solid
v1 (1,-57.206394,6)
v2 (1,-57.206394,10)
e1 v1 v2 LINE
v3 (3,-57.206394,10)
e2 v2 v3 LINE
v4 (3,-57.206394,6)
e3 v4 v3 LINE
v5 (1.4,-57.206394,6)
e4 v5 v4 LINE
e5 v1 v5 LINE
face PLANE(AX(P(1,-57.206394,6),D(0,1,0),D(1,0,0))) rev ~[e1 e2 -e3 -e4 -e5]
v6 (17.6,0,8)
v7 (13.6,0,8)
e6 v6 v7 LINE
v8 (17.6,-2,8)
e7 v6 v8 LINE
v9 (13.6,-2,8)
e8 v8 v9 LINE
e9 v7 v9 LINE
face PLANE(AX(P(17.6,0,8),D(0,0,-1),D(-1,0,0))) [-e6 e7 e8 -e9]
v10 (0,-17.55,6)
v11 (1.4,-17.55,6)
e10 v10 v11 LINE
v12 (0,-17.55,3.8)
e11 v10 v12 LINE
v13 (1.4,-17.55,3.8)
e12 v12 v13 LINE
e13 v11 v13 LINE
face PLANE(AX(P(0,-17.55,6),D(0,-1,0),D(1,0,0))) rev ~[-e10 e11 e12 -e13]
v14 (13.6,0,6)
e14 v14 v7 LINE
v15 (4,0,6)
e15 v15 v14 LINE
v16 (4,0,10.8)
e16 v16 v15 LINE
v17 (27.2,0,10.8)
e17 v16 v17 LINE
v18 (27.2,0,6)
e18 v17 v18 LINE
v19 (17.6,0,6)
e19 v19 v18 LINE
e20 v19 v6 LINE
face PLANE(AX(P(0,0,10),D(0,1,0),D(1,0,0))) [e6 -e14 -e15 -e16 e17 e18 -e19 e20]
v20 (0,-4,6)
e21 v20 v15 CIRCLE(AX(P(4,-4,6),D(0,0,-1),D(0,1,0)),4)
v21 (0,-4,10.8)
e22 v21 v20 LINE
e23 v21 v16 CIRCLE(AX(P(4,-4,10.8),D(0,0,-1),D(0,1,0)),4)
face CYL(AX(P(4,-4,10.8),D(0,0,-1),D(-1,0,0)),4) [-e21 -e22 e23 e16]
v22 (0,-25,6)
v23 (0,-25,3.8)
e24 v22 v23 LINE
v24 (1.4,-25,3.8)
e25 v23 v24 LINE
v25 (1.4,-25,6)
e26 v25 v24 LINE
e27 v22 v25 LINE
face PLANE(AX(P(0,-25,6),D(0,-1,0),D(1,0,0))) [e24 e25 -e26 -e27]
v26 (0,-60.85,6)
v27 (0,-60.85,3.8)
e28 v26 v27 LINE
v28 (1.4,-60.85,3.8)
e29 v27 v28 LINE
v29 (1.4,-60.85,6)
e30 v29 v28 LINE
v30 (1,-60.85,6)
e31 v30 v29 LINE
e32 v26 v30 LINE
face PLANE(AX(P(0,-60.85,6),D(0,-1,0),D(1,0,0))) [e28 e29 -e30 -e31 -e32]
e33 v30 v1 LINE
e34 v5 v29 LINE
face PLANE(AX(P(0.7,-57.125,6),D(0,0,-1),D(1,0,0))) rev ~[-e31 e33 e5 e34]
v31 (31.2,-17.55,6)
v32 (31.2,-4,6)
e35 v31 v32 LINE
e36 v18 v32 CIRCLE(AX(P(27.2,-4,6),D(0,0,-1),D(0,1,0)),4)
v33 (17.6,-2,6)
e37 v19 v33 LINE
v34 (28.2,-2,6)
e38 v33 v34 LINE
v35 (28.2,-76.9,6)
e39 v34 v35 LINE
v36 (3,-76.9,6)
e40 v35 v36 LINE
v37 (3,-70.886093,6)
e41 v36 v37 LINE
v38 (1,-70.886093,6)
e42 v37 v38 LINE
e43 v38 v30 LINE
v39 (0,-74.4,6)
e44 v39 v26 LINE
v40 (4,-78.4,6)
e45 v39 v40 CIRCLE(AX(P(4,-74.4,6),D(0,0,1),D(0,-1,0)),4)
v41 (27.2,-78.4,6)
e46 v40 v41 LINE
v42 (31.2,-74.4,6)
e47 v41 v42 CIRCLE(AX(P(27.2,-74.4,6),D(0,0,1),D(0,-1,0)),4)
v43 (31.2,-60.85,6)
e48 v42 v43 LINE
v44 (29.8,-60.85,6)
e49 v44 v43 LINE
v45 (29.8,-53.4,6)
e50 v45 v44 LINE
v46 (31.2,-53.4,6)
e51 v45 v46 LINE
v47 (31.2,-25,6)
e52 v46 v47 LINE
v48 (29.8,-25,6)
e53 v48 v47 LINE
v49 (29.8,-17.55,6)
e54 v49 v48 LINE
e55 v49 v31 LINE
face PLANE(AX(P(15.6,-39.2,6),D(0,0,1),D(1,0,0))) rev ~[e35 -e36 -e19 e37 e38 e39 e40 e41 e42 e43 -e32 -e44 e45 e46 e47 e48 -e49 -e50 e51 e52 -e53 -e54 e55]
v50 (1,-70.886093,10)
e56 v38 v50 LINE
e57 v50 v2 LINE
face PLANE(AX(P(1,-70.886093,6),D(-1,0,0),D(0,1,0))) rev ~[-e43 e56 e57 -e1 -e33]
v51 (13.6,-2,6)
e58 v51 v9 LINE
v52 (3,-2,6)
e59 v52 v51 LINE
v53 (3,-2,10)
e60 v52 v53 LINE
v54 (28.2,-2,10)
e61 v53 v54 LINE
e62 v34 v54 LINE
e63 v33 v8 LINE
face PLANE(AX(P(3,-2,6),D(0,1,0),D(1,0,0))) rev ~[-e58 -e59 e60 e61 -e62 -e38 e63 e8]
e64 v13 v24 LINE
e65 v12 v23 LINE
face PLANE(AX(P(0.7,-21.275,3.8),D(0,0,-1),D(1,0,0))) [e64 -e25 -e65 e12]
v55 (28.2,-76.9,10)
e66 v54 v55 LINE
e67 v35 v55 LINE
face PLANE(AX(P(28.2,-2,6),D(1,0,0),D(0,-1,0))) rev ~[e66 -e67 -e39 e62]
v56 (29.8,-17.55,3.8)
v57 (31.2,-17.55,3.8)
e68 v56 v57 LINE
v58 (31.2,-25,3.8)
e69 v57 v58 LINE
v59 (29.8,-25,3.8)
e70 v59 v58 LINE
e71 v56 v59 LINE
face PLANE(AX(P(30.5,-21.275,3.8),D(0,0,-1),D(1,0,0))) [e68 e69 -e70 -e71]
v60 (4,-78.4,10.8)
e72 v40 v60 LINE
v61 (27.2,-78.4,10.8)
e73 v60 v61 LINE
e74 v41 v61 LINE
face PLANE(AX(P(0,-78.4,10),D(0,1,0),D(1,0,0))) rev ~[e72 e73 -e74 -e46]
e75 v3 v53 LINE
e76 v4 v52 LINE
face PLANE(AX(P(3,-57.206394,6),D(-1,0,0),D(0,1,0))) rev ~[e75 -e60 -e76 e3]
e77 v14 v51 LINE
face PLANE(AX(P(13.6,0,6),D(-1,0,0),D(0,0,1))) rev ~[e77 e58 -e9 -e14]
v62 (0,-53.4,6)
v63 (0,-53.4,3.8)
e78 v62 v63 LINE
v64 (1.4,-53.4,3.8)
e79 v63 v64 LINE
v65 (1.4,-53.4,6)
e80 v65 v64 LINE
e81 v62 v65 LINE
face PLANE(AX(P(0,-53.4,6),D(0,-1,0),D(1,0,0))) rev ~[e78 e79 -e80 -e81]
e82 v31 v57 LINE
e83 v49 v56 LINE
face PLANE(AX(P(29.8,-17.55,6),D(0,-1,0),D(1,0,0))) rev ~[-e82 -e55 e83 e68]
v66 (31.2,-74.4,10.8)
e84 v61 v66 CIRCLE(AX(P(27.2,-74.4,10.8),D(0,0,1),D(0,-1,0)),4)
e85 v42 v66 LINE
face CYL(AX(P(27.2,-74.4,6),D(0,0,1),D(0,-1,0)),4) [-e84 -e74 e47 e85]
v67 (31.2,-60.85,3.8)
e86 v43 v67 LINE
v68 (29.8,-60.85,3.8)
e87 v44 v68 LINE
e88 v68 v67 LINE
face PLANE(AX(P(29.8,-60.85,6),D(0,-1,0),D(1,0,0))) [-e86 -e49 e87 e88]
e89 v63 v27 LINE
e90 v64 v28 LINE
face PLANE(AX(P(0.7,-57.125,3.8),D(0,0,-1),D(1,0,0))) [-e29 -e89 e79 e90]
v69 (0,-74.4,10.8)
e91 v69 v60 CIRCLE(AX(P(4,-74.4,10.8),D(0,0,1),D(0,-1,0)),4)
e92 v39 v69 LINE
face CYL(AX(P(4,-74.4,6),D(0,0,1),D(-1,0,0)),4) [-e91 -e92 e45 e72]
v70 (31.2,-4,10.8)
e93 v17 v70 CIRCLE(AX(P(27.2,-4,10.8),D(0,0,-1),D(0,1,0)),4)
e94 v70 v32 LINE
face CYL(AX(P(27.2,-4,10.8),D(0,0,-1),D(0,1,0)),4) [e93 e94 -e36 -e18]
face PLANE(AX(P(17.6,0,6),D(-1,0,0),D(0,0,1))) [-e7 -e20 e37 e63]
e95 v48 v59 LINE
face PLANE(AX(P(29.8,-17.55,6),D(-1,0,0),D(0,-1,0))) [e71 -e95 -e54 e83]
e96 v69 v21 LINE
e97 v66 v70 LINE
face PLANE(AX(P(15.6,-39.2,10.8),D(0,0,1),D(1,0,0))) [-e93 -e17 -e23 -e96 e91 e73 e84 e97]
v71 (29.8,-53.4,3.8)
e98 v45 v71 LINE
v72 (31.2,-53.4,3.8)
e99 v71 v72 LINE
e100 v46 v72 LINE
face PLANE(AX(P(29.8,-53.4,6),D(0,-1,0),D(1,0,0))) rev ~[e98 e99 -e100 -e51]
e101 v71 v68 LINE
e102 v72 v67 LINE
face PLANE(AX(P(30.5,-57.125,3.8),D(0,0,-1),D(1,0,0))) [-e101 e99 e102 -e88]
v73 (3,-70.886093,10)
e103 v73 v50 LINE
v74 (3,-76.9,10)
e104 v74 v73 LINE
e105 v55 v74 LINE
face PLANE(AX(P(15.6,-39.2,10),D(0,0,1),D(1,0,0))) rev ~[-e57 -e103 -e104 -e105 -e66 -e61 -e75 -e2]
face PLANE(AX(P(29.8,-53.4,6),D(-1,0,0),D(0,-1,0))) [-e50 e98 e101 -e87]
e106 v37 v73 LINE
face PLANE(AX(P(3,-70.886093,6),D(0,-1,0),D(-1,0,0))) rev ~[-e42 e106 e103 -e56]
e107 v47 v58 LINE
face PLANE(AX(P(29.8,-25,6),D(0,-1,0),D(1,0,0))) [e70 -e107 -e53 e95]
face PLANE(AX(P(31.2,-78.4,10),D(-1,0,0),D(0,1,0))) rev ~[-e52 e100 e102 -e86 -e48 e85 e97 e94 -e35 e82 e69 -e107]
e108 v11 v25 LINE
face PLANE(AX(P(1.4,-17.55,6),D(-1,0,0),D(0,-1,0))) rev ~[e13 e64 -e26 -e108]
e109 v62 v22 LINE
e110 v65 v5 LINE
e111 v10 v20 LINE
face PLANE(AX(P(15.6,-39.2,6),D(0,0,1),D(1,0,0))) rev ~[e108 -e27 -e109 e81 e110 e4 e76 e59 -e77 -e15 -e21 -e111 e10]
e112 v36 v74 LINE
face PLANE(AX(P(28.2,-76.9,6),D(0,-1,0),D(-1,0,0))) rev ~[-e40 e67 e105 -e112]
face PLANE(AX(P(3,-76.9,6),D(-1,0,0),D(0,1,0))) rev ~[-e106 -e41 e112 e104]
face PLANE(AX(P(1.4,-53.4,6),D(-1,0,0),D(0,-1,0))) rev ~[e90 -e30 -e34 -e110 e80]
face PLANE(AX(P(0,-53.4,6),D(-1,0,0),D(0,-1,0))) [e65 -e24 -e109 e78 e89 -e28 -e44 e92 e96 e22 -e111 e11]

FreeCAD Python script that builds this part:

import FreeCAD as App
import Part
import Sketcher
from FreeCAD import Vector


def edges_at(feature, points):
    """Names of the edges that pass closest to the given points."""
    edges = feature.Shape.Edges
    near = lambda p: min(range(len(edges)), key=lambda i: edges[i].distToShape(Part.Vertex(*p))[0])
    return sorted({f"Edge{near(p) + 1}" for p in points})

doc = App.newDocument("Part")
body = doc.addObject("PartDesign::Body", "Body")

# Sketch on XY plane
sketch1 = body.newObject("Sketcher::SketchObject", "Sketch")
sketch1.AttachmentSupport = (doc.getObject("XY_Plane"), [""])
sketch1.MapMode = "FlatFace"
sketch1.addGeometry(Part.LineSegment(Vector(0, 0, 0), Vector(0, -78.4, 0)), False)
sketch1.addGeometry(Part.LineSegment(Vector(0, -78.4, 0), Vector(31.2, -78.4, 0)), False)
sketch1.addGeometry(Part.LineSegment(Vector(31.2, -78.4, 0), Vector(31.2, 0, 0)), False)
sketch1.addGeometry(Part.LineSegment(Vector(31.2, 0, 0), Vector(0, 0, 0)), False)
sketch1.addGeometry(Part.LineSegment(Vector(3, -57.2, 0), Vector(3, -2, 0)), False)
sketch1.addGeometry(Part.LineSegment(Vector(3, -2, 0), Vector(28.2, -2, 0)), False)
sketch1.addGeometry(Part.LineSegment(Vector(28.2, -2, 0), Vector(28.2, -76.9, 0)), False)
sketch1.addGeometry(Part.LineSegment(Vector(28.2, -76.9, 0), Vector(3, -76.9, 0)), False)
sketch1.addGeometry(Part.LineSegment(Vector(3, -76.9, 0), Vector(3, -70.9, 0)), False)
sketch1.addGeometry(Part.LineSegment(Vector(3, -70.9, 0), Vector(1, -70.9, 0)), False)
sketch1.addGeometry(Part.LineSegment(Vector(1, -70.9, 0), Vector(1, -57.2, 0)), False)
sketch1.addGeometry(Part.LineSegment(Vector(1, -57.2, 0), Vector(3, -57.2, 0)), False)
sketch1.addConstraint(Sketcher.Constraint("Coincident", 0, 2, 1, 1))
sketch1.addConstraint(Sketcher.Constraint("Coincident", 1, 2, 2, 1))
sketch1.addConstraint(Sketcher.Constraint("Coincident", 2, 2, 3, 1))
sketch1.addConstraint(Sketcher.Constraint("Coincident", 3, 2, 0, 1))
sketch1.addConstraint(Sketcher.Constraint("Coincident", 4, 2, 5, 1))
sketch1.addConstraint(Sketcher.Constraint("Coincident", 5, 2, 6, 1))
sketch1.addConstraint(Sketcher.Constraint("Coincident", 6, 2, 7, 1))
sketch1.addConstraint(Sketcher.Constraint("Coincident", 7, 2, 8, 1))
sketch1.addConstraint(Sketcher.Constraint("Coincident", 8, 2, 9, 1))
sketch1.addConstraint(Sketcher.Constraint("Coincident", 9, 2, 10, 1))
sketch1.addConstraint(Sketcher.Constraint("Coincident", 10, 2, 11, 1))
sketch1.addConstraint(Sketcher.Constraint("Coincident", 11, 2, 4, 1))
sketch1.addConstraint(Sketcher.Constraint("Vertical", 0))
sketch1.addConstraint(Sketcher.Constraint("Horizontal", 1))
sketch1.addConstraint(Sketcher.Constraint("Vertical", 2))
sketch1.addConstraint(Sketcher.Constraint("Horizontal", 3))
sketch1.addConstraint(Sketcher.Constraint("Vertical", 4))
sketch1.addConstraint(Sketcher.Constraint("Horizontal", 5))
sketch1.addConstraint(Sketcher.Constraint("Vertical", 6))
sketch1.addConstraint(Sketcher.Constraint("Horizontal", 7))
sketch1.addConstraint(Sketcher.Constraint("Vertical", 8))
sketch1.addConstraint(Sketcher.Constraint("Horizontal", 9))
sketch1.addConstraint(Sketcher.Constraint("Vertical", 10))
sketch1.addConstraint(Sketcher.Constraint("Horizontal", 11))
sketch1.addConstraint(Sketcher.Constraint("Coincident", 3, 2, -1, 1))
sketch1.addConstraint(Sketcher.Constraint("Vertical", 4, 2, 7, 2))
sketch1.addConstraint(Sketcher.Constraint("DistanceX", 9, 2, 9, 1, 2.0))
sketch1.addConstraint(Sketcher.Constraint("DistanceX", 1, 1, 1, 2, 31.2))
sketch1.addConstraint(Sketcher.Constraint("DistanceX", 5, 1, 5, 2, 25.2))
sketch1.addConstraint(Sketcher.Constraint("DistanceY", 0, 2, 0, 1, 78.4))
sketch1.addConstraint(Sketcher.Constraint("DistanceY", 6, 2, 6, 1, 74.9))
sketch1.addConstraint(Sketcher.Constraint("DistanceX", -1, 1, 4, 2, 3.0))
sketch1.addConstraint(Sketcher.Constraint("DistanceY", 4, 2, -1, 1, 2.0))
sketch1.addConstraint(Sketcher.Constraint("DistanceY", 10, 1, 10, 2, 13.679699))
sketch1.addConstraint(Sketcher.Constraint("DistanceY", 4, 1, 4, 2, 55.206394))
pad1 = body.newObject("PartDesign::Pad", "Pad")
pad1.Profile = sketch1
pad1.Length = 4

# Sketch on XY plane
sketch2 = body.newObject("Sketcher::SketchObject", "Sketch001")
sketch2.AttachmentSupport = (doc.getObject("XY_Plane"), [""])
sketch2.MapMode = "FlatFace"
sketch2.AttachmentOffset = App.Placement(Vector(0, 0, 4), App.Rotation())
sketch2.addGeometry(Part.LineSegment(Vector(0, 0, 0), Vector(0, -78, 0)), False)
sketch2.addGeometry(Part.LineSegment(Vector(0, -78, 0), Vector(31, -78, 0)), False)
sketch2.addGeometry(Part.LineSegment(Vector(31, -78, 0), Vector(31, 0, 0)), False)
sketch2.addGeometry(Part.LineSegment(Vector(31, 0, 0), Vector(0, 0, 0)), False)
sketch2.addConstraint(Sketcher.Constraint("Coincident", 0, 2, 1, 1))
sketch2.addConstraint(Sketcher.Constraint("Coincident", 1, 2, 2, 1))
sketch2.addConstraint(Sketcher.Constraint("Coincident", 2, 2, 3, 1))
sketch2.addConstraint(Sketcher.Constraint("Coincident", 3, 2, 0, 1))
sketch2.addConstraint(Sketcher.Constraint("Vertical", 0))
sketch2.addConstraint(Sketcher.Constraint("Horizontal", 1))
sketch2.addConstraint(Sketcher.Constraint("Vertical", 2))
sketch2.addConstraint(Sketcher.Constraint("Horizontal", 3))
sketch2.addConstraint(Sketcher.Constraint("Coincident", 3, 2, -1, 1))
sketch2.addConstraint(Sketcher.Constraint("DistanceX", 1, 1, 1, 2, 31.2))
sketch2.addConstraint(Sketcher.Constraint("DistanceY", 0, 2, 0, 1, 78.4))
pad2 = body.newObject("PartDesign::Pad", "Pad001")
pad2.Profile = sketch2
pad2.Length = 0.8

# Sketch on XZ plane
sketch3 = body.newObject("Sketcher::SketchObject", "Sketch002")
sketch3.AttachmentSupport = (doc.getObject("XZ_Plane"), [""])
sketch3.MapMode = "FlatFace"
sketch3.addGeometry(Part.LineSegment(Vector(17.6, 2, 0), Vector(17.6, 0, 0)), False)
sketch3.addGeometry(Part.LineSegment(Vector(17.6, 0, 0), Vector(13.6, 0, 0)), False)
sketch3.addGeometry(Part.LineSegment(Vector(13.6, 0, 0), Vector(13.6, 2, 0)), False)
sketch3.addGeometry(Part.LineSegment(Vector(13.6, 2, 0), Vector(17.6, 2, 0)), False)
sketch3.addConstraint(Sketcher.Constraint("Coincident", 0, 2, 1, 1))
sketch3.addConstraint(Sketcher.Constraint("Coincident", 1, 2, 2, 1))
sketch3.addConstraint(Sketcher.Constraint("Coincident", 2, 2, 3, 1))
sketch3.addConstraint(Sketcher.Constraint("Coincident", 3, 2, 0, 1))
sketch3.addConstraint(Sketcher.Constraint("Vertical", 0))
sketch3.addConstraint(Sketcher.Constraint("Horizontal", 1))
sketch3.addConstraint(Sketcher.Constraint("Vertical", 2))
sketch3.addConstraint(Sketcher.Constraint("Horizontal", 3))
sketch3.addConstraint(Sketcher.Constraint("PointOnObject", 0, 2, -1))
sketch3.addConstraint(Sketcher.Constraint("DistanceX", 1, 2, 1, 1, 4.0))
sketch3.addConstraint(Sketcher.Constraint("DistanceY", 0, 2, 0, 1, 2.0))
sketch3.addConstraint(Sketcher.Constraint("DistanceX", -1, 1, 0, 2, 17.6))
pocket1 = body.newObject("PartDesign::Pocket", "Pocket")
pocket1.Profile = sketch3
pocket1.Length = 5
pocket1.Reversed = True

# Sketch on XY plane
sketch4 = body.newObject("Sketcher::SketchObject", "Sketch003")
sketch4.AttachmentSupport = (doc.getObject("XY_Plane"), [""])
sketch4.MapMode = "FlatFace"
sketch4.addGeometry(Part.LineSegment(Vector(0, -60.9, 0), Vector(0, -53.4, 0)), False)
sketch4.addGeometry(Part.LineSegment(Vector(0, -53.4, 0), Vector(1.4, -53.4, 0)), False)
sketch4.addGeometry(Part.LineSegment(Vector(1.4, -53.4, 0), Vector(1.4, -60.9, 0)), False)
sketch4.addGeometry(Part.LineSegment(Vector(1.4, -60.9, 0), Vector(0, -60.9, 0)), False)
sketch4.addGeometry(Part.LineSegment(Vector(0, -25, 0), Vector(0, -17.6, 0)), False)
sketch4.addGeometry(Part.LineSegment(Vector(0, -17.6, 0), Vector(1.4, -17.6, 0)), False)
sketch4.addGeometry(Part.LineSegment(Vector(1.4, -17.6, 0), Vector(1.4, -25, 0)), False)
sketch4.addGeometry(Part.LineSegment(Vector(1.4, -25, 0), Vector(0, -25, 0)), False)
sketch4.addGeometry(Part.LineSegment(Vector(29.8, -25, 0), Vector(29.8, -17.6, 0)), False)
sketch4.addGeometry(Part.LineSegment(Vector(29.8, -17.6, 0), Vector(31.2, -17.6, 0)), False)
sketch4.addGeometry(Part.LineSegment(Vector(31.2, -17.6, 0), Vector(31.2, -25, 0)), False)
sketch4.addGeometry(Part.LineSegment(Vector(31.2, -25, 0), Vector(29.8, -25, 0)), False)
sketch4.addGeometry(Part.LineSegment(Vector(29.8, -60.9, 0), Vector(29.8, -53.4, 0)), False)
sketch4.addGeometry(Part.LineSegment(Vector(29.8, -53.4, 0), Vector(31.2, -53.4, 0)), False)
sketch4.addGeometry(Part.LineSegment(Vector(31.2, -53.4, 0), Vector(31.2, -60.9, 0)), False)
sketch4.addGeometry(Part.LineSegment(Vector(31.2, -60.9, 0), Vector(29.8, -60.9, 0)), False)
sketch4.addConstraint(Sketcher.Constraint("Coincident", 0, 2, 1, 1))
sketch4.addConstraint(Sketcher.Constraint("Coincident", 1, 2, 2, 1))
sketch4.addConstraint(Sketcher.Constraint("Coincident", 2, 2, 3, 1))
sketch4.addConstraint(Sketcher.Constraint("Coincident", 3, 2, 0, 1))
sketch4.addConstraint(Sketcher.Constraint("Coincident", 4, 2, 5, 1))
sketch4.addConstraint(Sketcher.Constraint("Coincident", 5, 2, 6, 1))
sketch4.addConstraint(Sketcher.Constraint("Coincident", 6, 2, 7, 1))
sketch4.addConstraint(Sketcher.Constraint("Coincident", 7, 2, 4, 1))
sketch4.addConstraint(Sketcher.Constraint("Coincident", 8, 2, 9, 1))
sketch4.addConstraint(Sketcher.Constraint("Coincident", 9, 2, 10, 1))
sketch4.addConstraint(Sketcher.Constraint("Coincident", 10, 2, 11, 1))
sketch4.addConstraint(Sketcher.Constraint("Coincident", 11, 2, 8, 1))
sketch4.addConstraint(Sketcher.Constraint("Coincident", 12, 2, 13, 1))
sketch4.addConstraint(Sketcher.Constraint("Coincident", 13, 2, 14, 1))
sketch4.addConstraint(Sketcher.Constraint("Coincident", 14, 2, 15, 1))
sketch4.addConstraint(Sketcher.Constraint("Coincident", 15, 2, 12, 1))
sketch4.addConstraint(Sketcher.Constraint("Vertical", 0))
sketch4.addConstraint(Sketcher.Constraint("Horizontal", 1))
sketch4.addConstraint(Sketcher.Constraint("Vertical", 2))
sketch4.addConstraint(Sketcher.Constraint("Horizontal", 3))
sketch4.addConstraint(Sketcher.Constraint("Vertical", 4))
sketch4.addConstraint(Sketcher.Constraint("Horizontal", 5))
sketch4.addConstraint(Sketcher.Constraint("Vertical", 6))
sketch4.addConstraint(Sketcher.Constraint("Horizontal", 7))
sketch4.addConstraint(Sketcher.Constraint("Vertical", 8))
sketch4.addConstraint(Sketcher.Constraint("Horizontal", 9))
sketch4.addConstraint(Sketcher.Constraint("Vertical", 10))
sketch4.addConstraint(Sketcher.Constraint("Horizontal", 11))
sketch4.addConstraint(Sketcher.Constraint("Vertical", 12))
sketch4.addConstraint(Sketcher.Constraint("Horizontal", 13))
sketch4.addConstraint(Sketcher.Constraint("Vertical", 14))
sketch4.addConstraint(Sketcher.Constraint("Horizontal", 15))
sketch4.addConstraint(Sketcher.Constraint("PointOnObject", 0, 2, -2))
sketch4.addConstraint(Sketcher.Constraint("PointOnObject", 4, 2, -2))
sketch4.addConstraint(Sketcher.Constraint("Horizontal", 5, 2, 8, 2))
sketch4.addConstraint(Sketcher.Constraint("Horizontal", 7, 2, 10, 2))
sketch4.addConstraint(Sketcher.Constraint("Horizontal", 1, 2, 12, 2))
sketch4.addConstraint(Sketcher.Constraint("Horizontal", 3, 2, 14, 2))
sketch4.addConstraint(Sketcher.Constraint("Vertical", 2, 2, 5, 2))
sketch4.addConstraint(Sketcher.Constraint("Vertical", 11, 2, 12, 2))
sketch4.addConstraint(Sketcher.Constraint("Vertical", 10, 2, 13, 2))
sketch4.addConstraint(Sketcher.Constraint("Equal", 7, 9))
sketch4.addConstraint(Sketcher.Constraint("Equal", 2, 4))
sketch4.addConstraint(Sketcher.Constraint("DistanceX", 1, 1, 1, 2, 1.4))
sketch4.addConstraint(Sketcher.Constraint("DistanceY", 6, 2, -1, 1, 25.0))
sketch4.addConstraint(Sketcher.Constraint("DistanceY", 0, 1, 0, 2, 7.45))
sketch4.addConstraint(Sketcher.Constraint("DistanceY", 0, 2, -1, 1, 53.4))
sketch4.addConstraint(Sketcher.Constraint("DistanceX", -1, 1, 8, 2, 29.8))
pad3 = body.newObject("PartDesign::Pad", "Pad002")
pad3.Profile = sketch4
pad3.Length = 2.2
pad3.Reversed = True
doc.recompute()

fillet = body.newObject("PartDesign::Fillet", "Fillet")
fillet.Base = (pad3, edges_at(pad3, [
    (0, -78.4, 2.4),
    (0, 0, 2.4),
    (31.2, -78.4, 2.4),
    (31.2, 0, 2.4),
]))
fillet.Radius = 4
body2 = doc.addObject("PartDesign::Body", "Body001")
doc.recompute()

body.Placement = App.Placement(Vector(0, 0, 6), App.Rotation(Vector(0, 0, 1), 0))
boolean = body2.newObject("PartDesign::Boolean", "Boolean")
boolean.Type = "Fuse"
boolean.addObjects([body])

doc.recompute()
